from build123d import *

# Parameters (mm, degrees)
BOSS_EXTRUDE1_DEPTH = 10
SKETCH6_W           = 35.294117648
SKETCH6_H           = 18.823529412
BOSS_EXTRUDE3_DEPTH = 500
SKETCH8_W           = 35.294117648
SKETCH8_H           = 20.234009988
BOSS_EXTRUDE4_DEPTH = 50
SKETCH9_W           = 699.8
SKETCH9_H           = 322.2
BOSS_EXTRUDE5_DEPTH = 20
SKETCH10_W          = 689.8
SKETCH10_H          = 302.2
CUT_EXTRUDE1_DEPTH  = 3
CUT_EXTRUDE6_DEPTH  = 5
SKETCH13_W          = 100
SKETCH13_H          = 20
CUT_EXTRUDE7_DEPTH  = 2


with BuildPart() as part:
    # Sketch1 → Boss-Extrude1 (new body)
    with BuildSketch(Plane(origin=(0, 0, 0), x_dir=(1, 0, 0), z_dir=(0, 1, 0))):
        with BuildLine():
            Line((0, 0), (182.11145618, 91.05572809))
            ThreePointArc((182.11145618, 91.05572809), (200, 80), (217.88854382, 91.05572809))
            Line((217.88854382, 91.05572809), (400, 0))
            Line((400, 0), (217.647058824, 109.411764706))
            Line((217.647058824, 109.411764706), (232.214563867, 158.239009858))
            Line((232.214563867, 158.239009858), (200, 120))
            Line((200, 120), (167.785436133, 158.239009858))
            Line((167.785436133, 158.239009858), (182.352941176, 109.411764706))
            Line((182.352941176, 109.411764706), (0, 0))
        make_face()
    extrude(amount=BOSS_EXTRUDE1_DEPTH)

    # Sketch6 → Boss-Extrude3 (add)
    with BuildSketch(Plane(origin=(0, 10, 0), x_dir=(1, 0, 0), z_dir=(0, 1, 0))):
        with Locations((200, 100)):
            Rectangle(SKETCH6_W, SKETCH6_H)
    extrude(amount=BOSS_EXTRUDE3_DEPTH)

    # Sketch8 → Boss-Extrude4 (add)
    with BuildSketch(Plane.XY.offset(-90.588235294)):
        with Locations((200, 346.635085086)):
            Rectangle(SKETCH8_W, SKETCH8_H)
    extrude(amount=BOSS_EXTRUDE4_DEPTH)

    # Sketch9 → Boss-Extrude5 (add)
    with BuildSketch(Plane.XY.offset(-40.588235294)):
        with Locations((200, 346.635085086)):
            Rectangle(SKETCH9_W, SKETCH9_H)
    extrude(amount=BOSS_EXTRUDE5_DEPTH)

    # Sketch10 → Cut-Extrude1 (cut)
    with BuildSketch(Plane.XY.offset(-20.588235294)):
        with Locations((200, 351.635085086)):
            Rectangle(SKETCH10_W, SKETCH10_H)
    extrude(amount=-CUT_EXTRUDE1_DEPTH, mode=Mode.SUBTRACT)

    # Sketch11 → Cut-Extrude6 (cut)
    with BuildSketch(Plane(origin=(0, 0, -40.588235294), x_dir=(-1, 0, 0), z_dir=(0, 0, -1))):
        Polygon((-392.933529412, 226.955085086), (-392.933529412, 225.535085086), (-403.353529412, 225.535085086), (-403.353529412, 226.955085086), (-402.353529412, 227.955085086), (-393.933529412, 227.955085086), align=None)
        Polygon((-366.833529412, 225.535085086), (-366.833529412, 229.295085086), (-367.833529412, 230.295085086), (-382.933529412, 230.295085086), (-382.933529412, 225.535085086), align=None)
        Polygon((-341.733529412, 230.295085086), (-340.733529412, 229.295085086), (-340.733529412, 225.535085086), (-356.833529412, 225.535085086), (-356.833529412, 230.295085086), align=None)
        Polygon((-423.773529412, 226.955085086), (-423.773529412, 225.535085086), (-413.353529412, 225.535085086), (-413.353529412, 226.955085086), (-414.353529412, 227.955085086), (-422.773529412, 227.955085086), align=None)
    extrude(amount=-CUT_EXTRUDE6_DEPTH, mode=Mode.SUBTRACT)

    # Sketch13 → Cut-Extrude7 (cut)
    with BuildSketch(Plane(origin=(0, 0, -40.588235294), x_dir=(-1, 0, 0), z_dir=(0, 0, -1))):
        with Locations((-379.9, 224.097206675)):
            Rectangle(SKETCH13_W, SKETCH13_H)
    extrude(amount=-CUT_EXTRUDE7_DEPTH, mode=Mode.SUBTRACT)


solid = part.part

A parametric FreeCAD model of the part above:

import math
import FreeCAD as App
import Part
import Sketcher
Q = App.Units.Quantity


def add_polygon(sketch, points):
    """Adds a closed chain of lines whose ends are joined by coincident constraints."""
    first, n = sketch.GeometryCount, len(points)
    for a, b in zip(points, points[1:] + points[:1]):
        sketch.addGeometry(Part.LineSegment(App.Vector(*a, 0), App.Vector(*b, 0)), False)
    for i in range(n):
        sketch.addConstraint(Sketcher.Constraint("Coincident", first + i, 2, first + (i + 1) % n, 1))

doc = App.newDocument("Part")
body = doc.addObject("PartDesign::Body", "Body")

# Sketch on XZ plane
sketch1 = doc.addObject("Sketcher::SketchObject", "Sketch")
body.addObject(sketch1)
sketch1.AttachmentSupport = (doc.XZ_Plane, [""])
sketch1.MapMode = "FlatFace"
sketch1.addGeometry([
    Part.LineSegment(App.Vector(0, 0, 0), App.Vector(182, -91, 0)),  # 0
    Part.ArcOfCircle(Part.Circle(App.Vector(200, -100, 0), App.Vector(0, 0, 1), 20), math.radians(27), math.radians(153)),  # 1
    Part.LineSegment(App.Vector(218, -91, 0), App.Vector(400, 0, 0)),  # 2
    Part.LineSegment(App.Vector(400, 0, 0), App.Vector(218, -109, 0)),  # 3
    Part.LineSegment(App.Vector(218, -109, 0), App.Vector(232, -158, 0)),  # 4
    Part.LineSegment(App.Vector(232, -158, 0), App.Vector(200, -120, 0)),  # 5
    Part.LineSegment(App.Vector(200, -120, 0), App.Vector(168, -158, 0)),  # 6
    Part.LineSegment(App.Vector(168, -158, 0), App.Vector(182, -109, 0)),  # 7
    Part.LineSegment(App.Vector(182, -109, 0), App.Vector(0, 0, 0)),  # 8
], False)
sketch1.addConstraint([
    Sketcher.Constraint("Coincident", 0, 2, 1, 2),
    Sketcher.Constraint("Coincident", 1, 1, 2, 1),
    Sketcher.Constraint("Coincident", 2, 2, 3, 1),
    Sketcher.Constraint("Coincident", 3, 2, 4, 1),
    Sketcher.Constraint("Coincident", 4, 2, 5, 1),
    Sketcher.Constraint("Coincident", 5, 2, 6, 1),
    Sketcher.Constraint("Coincident", 6, 2, 7, 1),
    Sketcher.Constraint("Coincident", 7, 2, 8, 1),
    Sketcher.Constraint("Coincident", 8, 2, 0, 1),
    Sketcher.Constraint("Coincident", 8, 2, -1, 1),
    Sketcher.Constraint("PointOnObject", 2, 2, -1),
    Sketcher.Constraint("Horizontal", 0, 2, 1, 1),
    Sketcher.Constraint("Horizontal", 4, 2, 6, 2),
    Sketcher.Constraint("Horizontal", 3, 2, 7, 2),
    Sketcher.Constraint("Vertical", 1, 3, 5, 2),
    Sketcher.Constraint("Equal", 0, 2),
    Sketcher.Constraint("Equal", 5, 6),
    Sketcher.Constraint("Equal", 4, 7),
    Sketcher.Constraint("Radius", 1, Q("20 mm")),
    Sketcher.Constraint("Distance", 5, Q("50 mm")),
    Sketcher.Constraint("DistanceX", -1, 1, 1, 3, Q("200 mm")),
    Sketcher.Constraint("DistanceY", 1, 3, -1, 1, Q("100 mm")),
    Sketcher.Constraint("DistanceY", 5, 2, -1, 1, Q("120 mm")),
    Sketcher.Constraint("Distance", 4, Q("50.954019 mm")),
    Sketcher.Constraint("DistanceY", 0, 2, -1, 1, Q("91.055728 mm")),
    Sketcher.Constraint("DistanceX", -1, 1, 3, 2, Q("217.647059 mm")),
    Sketcher.Constraint("DistanceY", 4, 2, -1, 1, Q("158.23901 mm")),
])
pad1 = doc.addObject("PartDesign::Pad", "Pad")
body.addObject(pad1)
pad1.Profile = sketch1
pad1.Length = 10
pad1.Reversed = True

# Sketch on XZ plane
sketch2 = doc.addObject("Sketcher::SketchObject", "Sketch001")
body.addObject(sketch2)
sketch2.AttachmentSupport = (doc.XZ_Plane, [""])
sketch2.MapMode = "FlatFace"
sketch2.AttachmentOffset = App.Placement(App.Vector(0, 0, -10), App.Rotation())
add_polygon(sketch2, [(182, -109), (182, -91), (218, -91), (218, -109)])  # lines 0-3
sketch2.addConstraint([
    Sketcher.Constraint("Vertical", 0),
    Sketcher.Constraint("Horizontal", 1),
    Sketcher.Constraint("Vertical", 2),
    Sketcher.Constraint("Horizontal", 3),
    Sketcher.Constraint("DistanceY", 0, 1, 0, 2, Q("18.823529 mm")),
    Sketcher.Constraint("DistanceX", 1, 1, 1, 2, Q("35.294118 mm")),
    Sketcher.Constraint("DistanceX", -1, 1, 0, 2, Q("182.352941 mm")),
    Sketcher.Constraint("DistanceY", 0, 2, -1, 1, Q("90.588235 mm")),
])
pad2 = doc.addObject("PartDesign::Pad", "Pad001")
body.addObject(pad2)
pad2.Profile = sketch2
pad2.Length = 500
pad2.Reversed = True

# Sketch on XY plane
sketch3 = doc.addObject("Sketcher::SketchObject", "Sketch002")
body.addObject(sketch3)
sketch3.AttachmentSupport = (doc.XY_Plane, [""])
sketch3.MapMode = "FlatFace"
sketch3.AttachmentOffset = App.Placement(App.Vector(0, 0, -90.588235), App.Rotation())
add_polygon(sketch3, [(182, 357), (182, 337), (218, 337), (218, 357)])  # lines 0-3
sketch3.addConstraint([
    Sketcher.Constraint("Vertical", 0),
    Sketcher.Constraint("Horizontal", 1),
    Sketcher.Constraint("Vertical", 2),
    Sketcher.Constraint("Horizontal", 3),
    Sketcher.Constraint("DistanceY", 0, 2, 0, 1, Q("20.23401 mm")),
    Sketcher.Constraint("DistanceX", 1, 1, 1, 2, Q("35.294118 mm")),
    Sketcher.Constraint("DistanceX", -1, 1, 0, 2, Q("182.352941 mm")),
    Sketcher.Constraint("DistanceY", -1, 1, 0, 2, Q("336.51808 mm")),
])
pad3 = doc.addObject("PartDesign::Pad", "Pad002")
body.addObject(pad3)
pad3.Profile = sketch3
pad3.Length = 50

# Sketch on XY plane
sketch4 = doc.addObject("Sketcher::SketchObject", "Sketch003")
body.addObject(sketch4)
sketch4.AttachmentSupport = (doc.XY_Plane, [""])
sketch4.MapMode = "FlatFace"
sketch4.AttachmentOffset = App.Placement(App.Vector(0, 0, -40.588235), App.Rotation())
add_polygon(sketch4, [(-150, 508), (-150, 186), (550, 186), (550, 508)])  # lines 0-3
sketch4.addConstraint([
    Sketcher.Constraint("Vertical", 0),
    Sketcher.Constraint("Horizontal", 1),
    Sketcher.Constraint("Vertical", 2),
    Sketcher.Constraint("Horizontal", 3),
    Sketcher.Constraint("DistanceX", 1, 1, 1, 2, Q("699.8 mm")),
    Sketcher.Constraint("DistanceY", 0, 2, 0, 1, Q("322.2 mm")),
    Sketcher.Constraint("DistanceX", 0, 2, -1, 1, Q("149.9 mm")),
    Sketcher.Constraint("DistanceY", -1, 1, 0, 2, Q("185.535085 mm")),
])
pad4 = doc.addObject("PartDesign::Pad", "Pad003")
body.addObject(pad4)
pad4.Profile = sketch4
pad4.Length = 20

# Sketch on XY plane
sketch5 = doc.addObject("Sketcher::SketchObject", "Sketch004")
body.addObject(sketch5)
sketch5.AttachmentSupport = (doc.XY_Plane, [""])
sketch5.MapMode = "FlatFace"
sketch5.AttachmentOffset = App.Placement(App.Vector(0, 0, -20.588235), App.Rotation())
add_polygon(sketch5, [(-145, 503), (-145, 201), (545, 201), (545, 503)])  # lines 0-3
sketch5.addConstraint([
    Sketcher.Constraint("Vertical", 0),
    Sketcher.Constraint("Horizontal", 1),
    Sketcher.Constraint("Vertical", 2),
    Sketcher.Constraint("Horizontal", 3),
    Sketcher.Constraint("DistanceX", 1, 1, 1, 2, Q("689.8 mm")),
    Sketcher.Constraint("DistanceY", 0, 2, 0, 1, Q("302.2 mm")),
    Sketcher.Constraint("DistanceX", 0, 2, -1, 1, Q("144.9 mm")),
    Sketcher.Constraint("DistanceY", -1, 1, 0, 2, Q("200.535085 mm")),
])
pocket1 = doc.addObject("PartDesign::Pocket", "Pocket")
body.addObject(pocket1)
pocket1.Profile = sketch5
pocket1.Length = 3

# Sketch on XY plane
sketch6 = doc.addObject("Sketcher::SketchObject", "Sketch005")
body.addObject(sketch6)
sketch6.AttachmentSupport = (doc.XY_Plane, [""])
sketch6.MapMode = "FlatFace"
sketch6.AttachmentOffset = App.Placement(App.Vector(0, 0, -40.588235), App.Rotation())
add_polygon(sketch6, [(392.9, 225.5), (392.9, 227), (393.9, 228), (402.4, 228), (403.4, 227), (403.4, 225.5)])  # lines 0-5
add_polygon(sketch6, [(366.8, 225.5), (366.8, 229.3), (367.8, 230.3), (382.9, 230.3), (382.9, 225.5)])  # lines 6-10
add_polygon(sketch6, [(340.7, 229.3), (341.7, 230.3), (356.8, 230.3), (356.8, 225.5), (340.7, 225.5)])  # lines 11-15
add_polygon(sketch6, [(423.8, 227), (423.8, 225.5), (413.4, 225.5), (413.4, 227), (414.4, 228), (422.8, 228)])  # lines 16-21
sketch6.addConstraint([
    Sketcher.Constraint("Vertical", 0),
    Sketcher.Constraint("Horizontal", 2),
    Sketcher.Constraint("Vertical", 4),
    Sketcher.Constraint("Horizontal", 5),
    Sketcher.Constraint("Vertical", 6),
    Sketcher.Constraint("Horizontal", 8),
    Sketcher.Constraint("Vertical", 9),
    Sketcher.Constraint("Horizontal", 10),
    Sketcher.Constraint("Horizontal", 12),
    Sketcher.Constraint("Vertical", 13),
    Sketcher.Constraint("Horizontal", 14),
    Sketcher.Constraint("Vertical", 15),
    Sketcher.Constraint("Vertical", 16),
    Sketcher.Constraint("Horizontal", 17),
    Sketcher.Constraint("Vertical", 18),
    Sketcher.Constraint("Horizontal", 20),
    Sketcher.Constraint("Perpendicular", 1, 3),
    Sketcher.Constraint("Perpendicular", 3, 7),
    Sketcher.Constraint("Parallel", 7, 11),
    Sketcher.Constraint("Parallel", 11, 19),
    Sketcher.Constraint("Perpendicular", 19, 21),
    Sketcher.Constraint("Horizontal", 0, 2, 3, 2),
    Sketcher.Constraint("Horizontal", 5, 2, 9, 2),
    Sketcher.Constraint("Horizontal", 8, 2, 11, 2),
    Sketcher.Constraint("Horizontal", 10, 2, 13, 2),
    Sketcher.Constraint("Horizontal", 6, 2, 15, 2),
    Sketcher.Constraint("Horizontal", 14, 2, 16, 2),
    Sketcher.Constraint("Horizontal", 3, 2, 18, 2),
    Sketcher.Constraint("Horizontal", 2, 2, 19, 2),
    Sketcher.Constraint("Horizontal", 18, 2, 21, 2),
    Sketcher.Constraint("Equal", 8, 12),
    Sketcher.Constraint("Equal", 5, 17),
    Sketcher.Constraint("Equal", 1, 3),
    Sketcher.Constraint("Equal", 3, 7),
    Sketcher.Constraint("DistanceX", 8, 1, 8, 2, Q("15.1 mm")),
    Sketcher.Constraint("DistanceX", 10, 2, 10, 1, Q("16.1 mm")),
    Sketcher.Constraint("DistanceX", 8, 2, 0, 2, Q("10 mm")),
    Sketcher.Constraint("DistanceX", 12, 2, 6, 2, Q("10 mm")),
    Sketcher.Constraint("DistanceX", 4, 2, 17, 2, Q("10 mm")),
    Sketcher.Constraint("DistanceX", 2, 1, 2, 2, Q("8.42 mm")),
    Sketcher.Constraint("DistanceY", 0, 1, 0, 2, Q("1.42 mm")),
    Sketcher.Constraint("DistanceY", 6, 1, 6, 2, Q("3.76 mm")),
    Sketcher.Constraint("DistanceX", -1, 1, 0, 2, Q("392.933529 mm")),
    Sketcher.Constraint("DistanceY", -1, 1, 0, 2, Q("226.955085 mm")),
])
pocket2 = doc.addObject("PartDesign::Pocket", "Pocket001")
body.addObject(pocket2)
pocket2.Profile = sketch6
pocket2.Length = 5
pocket2.Reversed = True

# Sketch on XY plane
sketch7 = doc.addObject("Sketcher::SketchObject", "Sketch006")
body.addObject(sketch7)
sketch7.AttachmentSupport = (doc.XY_Plane, [""])
sketch7.MapMode = "FlatFace"
sketch7.AttachmentOffset = App.Placement(App.Vector(0, 0, -40.588235), App.Rotation())
add_polygon(sketch7, [(430, 234), (430, 214), (330, 214), (330, 234)])  # lines 0-3
sketch7.addConstraint([
    Sketcher.Constraint("Vertical", 0),
    Sketcher.Constraint("Horizontal", 1),
    Sketcher.Constraint("Vertical", 2),
    Sketcher.Constraint("Horizontal", 3),
    Sketcher.Constraint("DistanceX", 1, 2, 1, 1, Q("100 mm")),
    Sketcher.Constraint("DistanceY", 0, 2, 0, 1, Q("20 mm")),
    Sketcher.Constraint("DistanceX", -1, 1, 0, 2, Q("429.9 mm")),
    Sketcher.Constraint("DistanceY", -1, 1, 0, 2, Q("214.097207 mm")),
])
pocket3 = doc.addObject("PartDesign::Pocket", "Pocket002")
body.addObject(pocket3)
pocket3.Profile = sketch7
pocket3.Length = 2
pocket3.Reversed = True

doc.recompute()
